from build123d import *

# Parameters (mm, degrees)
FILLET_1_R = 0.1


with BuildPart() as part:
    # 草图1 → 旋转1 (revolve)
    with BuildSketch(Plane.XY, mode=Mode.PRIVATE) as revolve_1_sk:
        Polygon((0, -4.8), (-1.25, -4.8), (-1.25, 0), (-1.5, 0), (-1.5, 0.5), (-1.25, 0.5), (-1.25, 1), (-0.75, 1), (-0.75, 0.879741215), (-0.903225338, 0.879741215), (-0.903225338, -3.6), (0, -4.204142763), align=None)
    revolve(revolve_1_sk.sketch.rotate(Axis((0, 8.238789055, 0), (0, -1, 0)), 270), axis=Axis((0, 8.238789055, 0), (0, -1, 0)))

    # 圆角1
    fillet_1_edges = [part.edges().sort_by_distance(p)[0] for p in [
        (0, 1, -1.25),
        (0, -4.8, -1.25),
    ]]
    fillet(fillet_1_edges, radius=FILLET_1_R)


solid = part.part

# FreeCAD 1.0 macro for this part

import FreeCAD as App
import Part
import Sketcher
from FreeCAD import Vector
Q = App.Units.Quantity


def edges_at(feature, points):
    """Names of the edges that pass closest to the given points."""
    edges = feature.Shape.Edges
    near = lambda p: min(range(len(edges)), key=lambda i: edges[i].distToShape(Part.Vertex(*p))[0])
    return sorted({f"Edge{near(p) + 1}" for p in points})


def add_polygon(sketch, points):
    """Adds a closed chain of lines whose ends are joined by coincident constraints."""
    first, n = sketch.GeometryCount, len(points)
    for a, b in zip(points, points[1:] + points[:1]):
        sketch.addGeometry(Part.LineSegment(App.Vector(*a, 0), App.Vector(*b, 0)), False)
    for i in range(n):
        sketch.addConstraint(Sketcher.Constraint("Coincident", first + i, 2, first + (i + 1) % n, 1))

doc = App.newDocument("Part")
body = doc.addObject("PartDesign::Body", "Body")

# Sketch on XY plane
sketch1 = body.newObject("Sketcher::SketchObject", "Sketch")
sketch1.AttachmentSupport = (doc.getObject("XY_Plane"), [""])
sketch1.MapMode = "FlatFace"
add_polygon(sketch1, [(-1.25, -4.8), (0, -4.8), (0, -4.2), (-0.9, -3.6), (-0.9, 0.88), (-0.75, 0.88), (-0.75, 1), (-1.25, 1), (-1.25, 0.5), (-1.5, 0.5), (-1.5, 0), (-1.25, 0)])  # lines 0-11
sketch1.addConstraint(Sketcher.Constraint("Horizontal", 0))
sketch1.addConstraint(Sketcher.Constraint("Vertical", 1))
sketch1.addConstraint(Sketcher.Constraint("Vertical", 3))
sketch1.addConstraint(Sketcher.Constraint("Horizontal", 4))
sketch1.addConstraint(Sketcher.Constraint("Vertical", 5))
sketch1.addConstraint(Sketcher.Constraint("Horizontal", 6))
sketch1.addConstraint(Sketcher.Constraint("Vertical", 7))
sketch1.addConstraint(Sketcher.Constraint("Horizontal", 8))
sketch1.addConstraint(Sketcher.Constraint("Vertical", 9))
sketch1.addConstraint(Sketcher.Constraint("Horizontal", 10))
sketch1.addConstraint(Sketcher.Constraint("Vertical", 11))
sketch1.addConstraint(Sketcher.Constraint("PointOnObject", 0, 2, -2))
sketch1.addConstraint(Sketcher.Constraint("PointOnObject", 9, 2, -1))
sketch1.addConstraint(Sketcher.Constraint("Vertical", 7, 2, 10, 2))
sketch1.addConstraint(Sketcher.Constraint("Equal", 6, 7))
sketch1.addConstraint(Sketcher.Constraint("Equal", 7, 9))
sketch1.addConstraint(Sketcher.Constraint("DistanceX", 6, 2, 6, 1, Q("0.5 mm")))
sketch1.addConstraint(Sketcher.Constraint("DistanceY", 11, 2, 11, 1, Q("4.8 mm")))
sketch1.addConstraint(Sketcher.Constraint("DistanceX", 0, 1, 0, 2, Q("1.25 mm")))
sketch1.addConstraint(Sketcher.Constraint("DistanceX", 8, 2, 8, 1, Q("0.25 mm")))
sketch1.addConstraint(Sketcher.Constraint("DistanceY", 2, 2, -1, 1, Q("3.6 mm")))
sketch1.addConstraint(Sketcher.Constraint("DistanceY", 3, 1, 3, 2, Q("4.479741 mm")))
sketch1.addConstraint(Sketcher.Constraint("Distance", 2, Q("1.086648 mm")))
sketch1.addConstraint(Sketcher.Constraint("DistanceX", 4, 1, 4, 2, Q("0.153225 mm")))
revolution = body.newObject("PartDesign::Revolution", "Revolution")
revolution.Profile = sketch1
revolution.ReferenceAxis = (sketch1, ["V_Axis"])
revolution.Angle = 360
doc.recompute()

fillet = body.newObject("PartDesign::Fillet", "Fillet")
fillet.Base = (revolution, edges_at(revolution, [(0, 1, -1.25), (0, -4.8, -1.25)]))
fillet.Radius = 0.1

doc.recompute()
